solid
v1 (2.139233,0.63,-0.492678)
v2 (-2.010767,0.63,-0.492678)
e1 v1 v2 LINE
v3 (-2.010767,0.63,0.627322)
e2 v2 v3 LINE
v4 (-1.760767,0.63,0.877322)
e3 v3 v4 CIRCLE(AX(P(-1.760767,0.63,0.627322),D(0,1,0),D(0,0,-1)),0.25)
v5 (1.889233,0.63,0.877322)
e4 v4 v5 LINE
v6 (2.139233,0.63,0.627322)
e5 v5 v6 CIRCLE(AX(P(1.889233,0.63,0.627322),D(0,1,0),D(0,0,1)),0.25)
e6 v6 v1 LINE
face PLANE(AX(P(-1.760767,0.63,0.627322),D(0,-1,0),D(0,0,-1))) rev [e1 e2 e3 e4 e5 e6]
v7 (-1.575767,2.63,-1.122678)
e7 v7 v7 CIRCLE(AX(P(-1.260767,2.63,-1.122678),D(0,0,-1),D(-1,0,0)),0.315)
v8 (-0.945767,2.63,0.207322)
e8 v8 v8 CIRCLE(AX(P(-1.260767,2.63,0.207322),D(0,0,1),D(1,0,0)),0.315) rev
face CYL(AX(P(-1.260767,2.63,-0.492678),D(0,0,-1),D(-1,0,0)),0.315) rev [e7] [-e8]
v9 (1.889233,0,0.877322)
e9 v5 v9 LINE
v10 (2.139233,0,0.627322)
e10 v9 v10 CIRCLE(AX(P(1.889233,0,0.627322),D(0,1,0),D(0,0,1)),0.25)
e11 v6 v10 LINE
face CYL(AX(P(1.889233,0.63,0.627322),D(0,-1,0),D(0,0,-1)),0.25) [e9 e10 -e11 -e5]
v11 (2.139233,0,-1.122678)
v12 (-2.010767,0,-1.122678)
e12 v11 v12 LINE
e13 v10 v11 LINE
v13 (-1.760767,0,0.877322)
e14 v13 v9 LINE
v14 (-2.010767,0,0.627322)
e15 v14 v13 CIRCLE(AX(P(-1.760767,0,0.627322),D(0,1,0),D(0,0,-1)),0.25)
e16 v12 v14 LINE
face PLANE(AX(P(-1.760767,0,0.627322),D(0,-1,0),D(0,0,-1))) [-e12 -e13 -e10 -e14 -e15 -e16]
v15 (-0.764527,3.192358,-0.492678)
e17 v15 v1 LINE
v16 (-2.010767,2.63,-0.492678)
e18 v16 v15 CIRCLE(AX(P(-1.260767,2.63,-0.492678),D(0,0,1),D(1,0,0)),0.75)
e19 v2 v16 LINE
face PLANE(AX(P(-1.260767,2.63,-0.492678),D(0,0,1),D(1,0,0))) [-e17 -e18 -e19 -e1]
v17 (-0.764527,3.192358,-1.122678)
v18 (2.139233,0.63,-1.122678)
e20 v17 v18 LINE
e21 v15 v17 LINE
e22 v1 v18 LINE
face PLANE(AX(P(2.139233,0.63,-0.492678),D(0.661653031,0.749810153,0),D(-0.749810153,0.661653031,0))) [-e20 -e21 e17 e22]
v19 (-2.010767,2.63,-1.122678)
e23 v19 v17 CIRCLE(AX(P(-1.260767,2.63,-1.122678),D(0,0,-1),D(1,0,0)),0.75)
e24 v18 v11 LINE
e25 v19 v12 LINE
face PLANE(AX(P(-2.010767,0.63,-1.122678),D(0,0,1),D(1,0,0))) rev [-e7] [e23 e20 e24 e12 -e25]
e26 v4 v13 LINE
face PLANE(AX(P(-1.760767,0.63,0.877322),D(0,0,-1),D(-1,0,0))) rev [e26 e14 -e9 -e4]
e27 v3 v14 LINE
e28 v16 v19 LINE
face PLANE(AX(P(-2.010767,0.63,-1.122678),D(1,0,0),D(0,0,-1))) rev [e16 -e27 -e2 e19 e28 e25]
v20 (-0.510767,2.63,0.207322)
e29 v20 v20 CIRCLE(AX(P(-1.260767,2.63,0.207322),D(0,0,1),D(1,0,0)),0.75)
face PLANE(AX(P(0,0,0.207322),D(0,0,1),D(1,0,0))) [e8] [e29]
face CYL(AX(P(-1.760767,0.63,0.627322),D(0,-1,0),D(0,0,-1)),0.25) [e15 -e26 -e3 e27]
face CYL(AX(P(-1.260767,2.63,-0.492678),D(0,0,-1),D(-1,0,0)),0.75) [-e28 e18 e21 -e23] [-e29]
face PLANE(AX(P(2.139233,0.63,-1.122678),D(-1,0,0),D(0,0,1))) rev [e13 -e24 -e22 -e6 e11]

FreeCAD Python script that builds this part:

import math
import FreeCAD as App
import Part
import Sketcher
from FreeCAD import Vector

doc = App.newDocument("Part")
body = doc.addObject("PartDesign::Body", "Body")

# Sketch on XZ plane
sketch1 = doc.addObject("Sketcher::SketchObject", "Sketch")
body.addObject(sketch1)
sketch1.AttachmentSupport = (doc.XZ_Plane, [""])
sketch1.MapMode = "FlatFace"
sketch1.addGeometry(Part.LineSegment(Vector(2.14, -1.12, 0), Vector(-2.01, -1.12, 0)), False)
sketch1.addGeometry(Part.LineSegment(Vector(-2.01, -1.12, 0), Vector(-2.01, 0.63, 0)), False)
sketch1.addGeometry(Part.ArcOfCircle(Part.Circle(Vector(-1.76, 0.63, 0), Vector(0, 0, 1), 0.25), math.radians(90), math.radians(180)), False)
sketch1.addGeometry(Part.LineSegment(Vector(-1.76, 0.88, 0), Vector(1.89, 0.88, 0)), False)
sketch1.addGeometry(Part.ArcOfCircle(Part.Circle(Vector(1.89, 0.63, 0), Vector(0, 0, 1), 0.25), math.radians(0), math.radians(90)), False)
sketch1.addGeometry(Part.LineSegment(Vector(2.14, 0.63, 0), Vector(2.14, -1.12, 0)), False)
sketch1.addConstraint(Sketcher.Constraint("Coincident", 0, 2, 1, 1))
sketch1.addConstraint(Sketcher.Constraint("Tangent", 1, 2, 2, 2))
sketch1.addConstraint(Sketcher.Constraint("Tangent", 2, 1, 3, 1))
sketch1.addConstraint(Sketcher.Constraint("Tangent", 3, 2, 4, 2))
sketch1.addConstraint(Sketcher.Constraint("Tangent", 4, 1, 5, 1))
sketch1.addConstraint(Sketcher.Constraint("Coincident", 5, 2, 0, 1))
sketch1.addConstraint(Sketcher.Constraint("Horizontal", 0))
sketch1.addConstraint(Sketcher.Constraint("Vertical", 1))
sketch1.addConstraint(Sketcher.Constraint("Horizontal", 3))
sketch1.addConstraint(Sketcher.Constraint("Vertical", 5))
sketch1.addConstraint(Sketcher.Constraint("Equal", 2, 4))
sketch1.addConstraint(Sketcher.Constraint("Radius", 2, 0.25))
sketch1.addConstraint(Sketcher.Constraint("DistanceY", 0, 2, 2, 1, 2.0))
sketch1.addConstraint(Sketcher.Constraint("DistanceX", 0, 2, 0, 1, 4.15))
sketch1.addConstraint(Sketcher.Constraint("DistanceY", -1, 1, 2, 3, 0.627322))
sketch1.addConstraint(Sketcher.Constraint("DistanceX", 2, 3, -1, 1, 1.760767))
pad1 = doc.addObject("PartDesign::Pad", "Pad")
body.addObject(pad1)
pad1.Profile = sketch1
pad1.Length = 0.63
pad1.Reversed = True

# Sketch on XY plane
sketch2 = doc.addObject("Sketcher::SketchObject", "Sketch001")
body.addObject(sketch2)
sketch2.AttachmentSupport = (doc.XY_Plane, [""])
sketch2.MapMode = "FlatFace"
sketch2.AttachmentOffset = App.Placement(Vector(0, 0, -1.122678), App.Rotation())
sketch2.addGeometry(Part.LineSegment(Vector(-0.76, 3.19, 0), Vector(2.14, 0.63, 0)), False)
sketch2.addGeometry(Part.LineSegment(Vector(2.14, 0.63, 0), Vector(-2.01, 0.63, 0)), False)
sketch2.addGeometry(Part.LineSegment(Vector(-2.01, 0.63, 0), Vector(-2.01, 2.63, 0)), False)
sketch2.addGeometry(Part.ArcOfCircle(Part.Circle(Vector(-1.26, 2.63, 0), Vector(0, 0, 1), 0.75), math.radians(49), math.radians(180)), False)
sketch2.addGeometry(Part.Circle(Vector(-1.26, 2.63, 0), Vector(0, 0, 1), 0.32), False)
sketch2.addConstraint(Sketcher.Constraint("Coincident", 0, 2, 1, 1))
sketch2.addConstraint(Sketcher.Constraint("Coincident", 1, 2, 2, 1))
sketch2.addConstraint(Sketcher.Constraint("Tangent", 2, 2, 3, 2))
sketch2.addConstraint(Sketcher.Constraint("Tangent", 3, 1, 0, 1))
sketch2.addConstraint(Sketcher.Constraint("Horizontal", 1))
sketch2.addConstraint(Sketcher.Constraint("Vertical", 2))
sketch2.addConstraint(Sketcher.Constraint("Coincident", 4, 3, 3, 3))
sketch2.addConstraint(Sketcher.Constraint("Diameter", 4, 0.63))
sketch2.addConstraint(Sketcher.Constraint("DistanceY", 2, 1, 2, 2, 2.0))
sketch2.addConstraint(Sketcher.Constraint("Radius", 3, 0.75))
sketch2.addConstraint(Sketcher.Constraint("DistanceX", 1, 2, 1, 1, 4.15))
sketch2.addConstraint(Sketcher.Constraint("DistanceY", -1, 1, 3, 3, 2.63))
sketch2.addConstraint(Sketcher.Constraint("DistanceX", 3, 3, -1, 1, 1.260767))
pad2 = doc.addObject("PartDesign::Pad", "Pad001")
body.addObject(pad2)
pad2.Profile = sketch2
pad2.Length = 0.63

# Sketch on XY plane
sketch3 = doc.addObject("Sketcher::SketchObject", "Sketch002")
body.addObject(sketch3)
sketch3.AttachmentSupport = (doc.XY_Plane, [""])
sketch3.MapMode = "FlatFace"
sketch3.AttachmentOffset = App.Placement(Vector(0, 0, -0.492678), App.Rotation())
sketch3.addGeometry(Part.ArcOfCircle(Part.Circle(Vector(-1.26, 2.63, 0), Vector(0, 0, 1), 0.75), math.radians(49), math.radians(180)), False)
sketch3.addGeometry(Part.ArcOfCircle(Part.Circle(Vector(-1.26, 2.63, 0), Vector(0, 0, 1), 0.75), math.radians(180), math.radians(360)), False)
sketch3.addGeometry(Part.ArcOfCircle(Part.Circle(Vector(-1.26, 2.63, 0), Vector(0, 0, 1), 0.75), math.radians(0), math.radians(49)), False)
sketch3.addGeometry(Part.Circle(Vector(-1.26, 2.63, 0), Vector(0, 0, 1), 0.32), False)
sketch3.addConstraint(Sketcher.Constraint("Tangent", 0, 2, 1, 1))
sketch3.addConstraint(Sketcher.Constraint("Tangent", 1, 2, 2, 1))
sketch3.addConstraint(Sketcher.Constraint("Tangent", 2, 2, 0, 1))
sketch3.addConstraint(Sketcher.Constraint("Coincident", 3, 3, 0, 3))
sketch3.addConstraint(Sketcher.Constraint("Horizontal", 3, 3, 0, 2))
sketch3.addConstraint(Sketcher.Constraint("Horizontal", 0, 2, 1, 2))
sketch3.addConstraint(Sketcher.Constraint("Diameter", 3, 0.63))
sketch3.addConstraint(Sketcher.Constraint("Radius", 0, 0.75))
sketch3.addConstraint(Sketcher.Constraint("DistanceY", -1, 1, 0, 3, 2.63))
sketch3.addConstraint(Sketcher.Constraint("DistanceX", 2, 2, 1, 2, 0.25376))
sketch3.addConstraint(Sketcher.Constraint("DistanceX", 0, 3, -1, 1, 1.260767))
pad3 = doc.addObject("PartDesign::Pad", "Pad002")
body.addObject(pad3)
pad3.Profile = sketch3
pad3.Length = 0.7

doc.recompute()
